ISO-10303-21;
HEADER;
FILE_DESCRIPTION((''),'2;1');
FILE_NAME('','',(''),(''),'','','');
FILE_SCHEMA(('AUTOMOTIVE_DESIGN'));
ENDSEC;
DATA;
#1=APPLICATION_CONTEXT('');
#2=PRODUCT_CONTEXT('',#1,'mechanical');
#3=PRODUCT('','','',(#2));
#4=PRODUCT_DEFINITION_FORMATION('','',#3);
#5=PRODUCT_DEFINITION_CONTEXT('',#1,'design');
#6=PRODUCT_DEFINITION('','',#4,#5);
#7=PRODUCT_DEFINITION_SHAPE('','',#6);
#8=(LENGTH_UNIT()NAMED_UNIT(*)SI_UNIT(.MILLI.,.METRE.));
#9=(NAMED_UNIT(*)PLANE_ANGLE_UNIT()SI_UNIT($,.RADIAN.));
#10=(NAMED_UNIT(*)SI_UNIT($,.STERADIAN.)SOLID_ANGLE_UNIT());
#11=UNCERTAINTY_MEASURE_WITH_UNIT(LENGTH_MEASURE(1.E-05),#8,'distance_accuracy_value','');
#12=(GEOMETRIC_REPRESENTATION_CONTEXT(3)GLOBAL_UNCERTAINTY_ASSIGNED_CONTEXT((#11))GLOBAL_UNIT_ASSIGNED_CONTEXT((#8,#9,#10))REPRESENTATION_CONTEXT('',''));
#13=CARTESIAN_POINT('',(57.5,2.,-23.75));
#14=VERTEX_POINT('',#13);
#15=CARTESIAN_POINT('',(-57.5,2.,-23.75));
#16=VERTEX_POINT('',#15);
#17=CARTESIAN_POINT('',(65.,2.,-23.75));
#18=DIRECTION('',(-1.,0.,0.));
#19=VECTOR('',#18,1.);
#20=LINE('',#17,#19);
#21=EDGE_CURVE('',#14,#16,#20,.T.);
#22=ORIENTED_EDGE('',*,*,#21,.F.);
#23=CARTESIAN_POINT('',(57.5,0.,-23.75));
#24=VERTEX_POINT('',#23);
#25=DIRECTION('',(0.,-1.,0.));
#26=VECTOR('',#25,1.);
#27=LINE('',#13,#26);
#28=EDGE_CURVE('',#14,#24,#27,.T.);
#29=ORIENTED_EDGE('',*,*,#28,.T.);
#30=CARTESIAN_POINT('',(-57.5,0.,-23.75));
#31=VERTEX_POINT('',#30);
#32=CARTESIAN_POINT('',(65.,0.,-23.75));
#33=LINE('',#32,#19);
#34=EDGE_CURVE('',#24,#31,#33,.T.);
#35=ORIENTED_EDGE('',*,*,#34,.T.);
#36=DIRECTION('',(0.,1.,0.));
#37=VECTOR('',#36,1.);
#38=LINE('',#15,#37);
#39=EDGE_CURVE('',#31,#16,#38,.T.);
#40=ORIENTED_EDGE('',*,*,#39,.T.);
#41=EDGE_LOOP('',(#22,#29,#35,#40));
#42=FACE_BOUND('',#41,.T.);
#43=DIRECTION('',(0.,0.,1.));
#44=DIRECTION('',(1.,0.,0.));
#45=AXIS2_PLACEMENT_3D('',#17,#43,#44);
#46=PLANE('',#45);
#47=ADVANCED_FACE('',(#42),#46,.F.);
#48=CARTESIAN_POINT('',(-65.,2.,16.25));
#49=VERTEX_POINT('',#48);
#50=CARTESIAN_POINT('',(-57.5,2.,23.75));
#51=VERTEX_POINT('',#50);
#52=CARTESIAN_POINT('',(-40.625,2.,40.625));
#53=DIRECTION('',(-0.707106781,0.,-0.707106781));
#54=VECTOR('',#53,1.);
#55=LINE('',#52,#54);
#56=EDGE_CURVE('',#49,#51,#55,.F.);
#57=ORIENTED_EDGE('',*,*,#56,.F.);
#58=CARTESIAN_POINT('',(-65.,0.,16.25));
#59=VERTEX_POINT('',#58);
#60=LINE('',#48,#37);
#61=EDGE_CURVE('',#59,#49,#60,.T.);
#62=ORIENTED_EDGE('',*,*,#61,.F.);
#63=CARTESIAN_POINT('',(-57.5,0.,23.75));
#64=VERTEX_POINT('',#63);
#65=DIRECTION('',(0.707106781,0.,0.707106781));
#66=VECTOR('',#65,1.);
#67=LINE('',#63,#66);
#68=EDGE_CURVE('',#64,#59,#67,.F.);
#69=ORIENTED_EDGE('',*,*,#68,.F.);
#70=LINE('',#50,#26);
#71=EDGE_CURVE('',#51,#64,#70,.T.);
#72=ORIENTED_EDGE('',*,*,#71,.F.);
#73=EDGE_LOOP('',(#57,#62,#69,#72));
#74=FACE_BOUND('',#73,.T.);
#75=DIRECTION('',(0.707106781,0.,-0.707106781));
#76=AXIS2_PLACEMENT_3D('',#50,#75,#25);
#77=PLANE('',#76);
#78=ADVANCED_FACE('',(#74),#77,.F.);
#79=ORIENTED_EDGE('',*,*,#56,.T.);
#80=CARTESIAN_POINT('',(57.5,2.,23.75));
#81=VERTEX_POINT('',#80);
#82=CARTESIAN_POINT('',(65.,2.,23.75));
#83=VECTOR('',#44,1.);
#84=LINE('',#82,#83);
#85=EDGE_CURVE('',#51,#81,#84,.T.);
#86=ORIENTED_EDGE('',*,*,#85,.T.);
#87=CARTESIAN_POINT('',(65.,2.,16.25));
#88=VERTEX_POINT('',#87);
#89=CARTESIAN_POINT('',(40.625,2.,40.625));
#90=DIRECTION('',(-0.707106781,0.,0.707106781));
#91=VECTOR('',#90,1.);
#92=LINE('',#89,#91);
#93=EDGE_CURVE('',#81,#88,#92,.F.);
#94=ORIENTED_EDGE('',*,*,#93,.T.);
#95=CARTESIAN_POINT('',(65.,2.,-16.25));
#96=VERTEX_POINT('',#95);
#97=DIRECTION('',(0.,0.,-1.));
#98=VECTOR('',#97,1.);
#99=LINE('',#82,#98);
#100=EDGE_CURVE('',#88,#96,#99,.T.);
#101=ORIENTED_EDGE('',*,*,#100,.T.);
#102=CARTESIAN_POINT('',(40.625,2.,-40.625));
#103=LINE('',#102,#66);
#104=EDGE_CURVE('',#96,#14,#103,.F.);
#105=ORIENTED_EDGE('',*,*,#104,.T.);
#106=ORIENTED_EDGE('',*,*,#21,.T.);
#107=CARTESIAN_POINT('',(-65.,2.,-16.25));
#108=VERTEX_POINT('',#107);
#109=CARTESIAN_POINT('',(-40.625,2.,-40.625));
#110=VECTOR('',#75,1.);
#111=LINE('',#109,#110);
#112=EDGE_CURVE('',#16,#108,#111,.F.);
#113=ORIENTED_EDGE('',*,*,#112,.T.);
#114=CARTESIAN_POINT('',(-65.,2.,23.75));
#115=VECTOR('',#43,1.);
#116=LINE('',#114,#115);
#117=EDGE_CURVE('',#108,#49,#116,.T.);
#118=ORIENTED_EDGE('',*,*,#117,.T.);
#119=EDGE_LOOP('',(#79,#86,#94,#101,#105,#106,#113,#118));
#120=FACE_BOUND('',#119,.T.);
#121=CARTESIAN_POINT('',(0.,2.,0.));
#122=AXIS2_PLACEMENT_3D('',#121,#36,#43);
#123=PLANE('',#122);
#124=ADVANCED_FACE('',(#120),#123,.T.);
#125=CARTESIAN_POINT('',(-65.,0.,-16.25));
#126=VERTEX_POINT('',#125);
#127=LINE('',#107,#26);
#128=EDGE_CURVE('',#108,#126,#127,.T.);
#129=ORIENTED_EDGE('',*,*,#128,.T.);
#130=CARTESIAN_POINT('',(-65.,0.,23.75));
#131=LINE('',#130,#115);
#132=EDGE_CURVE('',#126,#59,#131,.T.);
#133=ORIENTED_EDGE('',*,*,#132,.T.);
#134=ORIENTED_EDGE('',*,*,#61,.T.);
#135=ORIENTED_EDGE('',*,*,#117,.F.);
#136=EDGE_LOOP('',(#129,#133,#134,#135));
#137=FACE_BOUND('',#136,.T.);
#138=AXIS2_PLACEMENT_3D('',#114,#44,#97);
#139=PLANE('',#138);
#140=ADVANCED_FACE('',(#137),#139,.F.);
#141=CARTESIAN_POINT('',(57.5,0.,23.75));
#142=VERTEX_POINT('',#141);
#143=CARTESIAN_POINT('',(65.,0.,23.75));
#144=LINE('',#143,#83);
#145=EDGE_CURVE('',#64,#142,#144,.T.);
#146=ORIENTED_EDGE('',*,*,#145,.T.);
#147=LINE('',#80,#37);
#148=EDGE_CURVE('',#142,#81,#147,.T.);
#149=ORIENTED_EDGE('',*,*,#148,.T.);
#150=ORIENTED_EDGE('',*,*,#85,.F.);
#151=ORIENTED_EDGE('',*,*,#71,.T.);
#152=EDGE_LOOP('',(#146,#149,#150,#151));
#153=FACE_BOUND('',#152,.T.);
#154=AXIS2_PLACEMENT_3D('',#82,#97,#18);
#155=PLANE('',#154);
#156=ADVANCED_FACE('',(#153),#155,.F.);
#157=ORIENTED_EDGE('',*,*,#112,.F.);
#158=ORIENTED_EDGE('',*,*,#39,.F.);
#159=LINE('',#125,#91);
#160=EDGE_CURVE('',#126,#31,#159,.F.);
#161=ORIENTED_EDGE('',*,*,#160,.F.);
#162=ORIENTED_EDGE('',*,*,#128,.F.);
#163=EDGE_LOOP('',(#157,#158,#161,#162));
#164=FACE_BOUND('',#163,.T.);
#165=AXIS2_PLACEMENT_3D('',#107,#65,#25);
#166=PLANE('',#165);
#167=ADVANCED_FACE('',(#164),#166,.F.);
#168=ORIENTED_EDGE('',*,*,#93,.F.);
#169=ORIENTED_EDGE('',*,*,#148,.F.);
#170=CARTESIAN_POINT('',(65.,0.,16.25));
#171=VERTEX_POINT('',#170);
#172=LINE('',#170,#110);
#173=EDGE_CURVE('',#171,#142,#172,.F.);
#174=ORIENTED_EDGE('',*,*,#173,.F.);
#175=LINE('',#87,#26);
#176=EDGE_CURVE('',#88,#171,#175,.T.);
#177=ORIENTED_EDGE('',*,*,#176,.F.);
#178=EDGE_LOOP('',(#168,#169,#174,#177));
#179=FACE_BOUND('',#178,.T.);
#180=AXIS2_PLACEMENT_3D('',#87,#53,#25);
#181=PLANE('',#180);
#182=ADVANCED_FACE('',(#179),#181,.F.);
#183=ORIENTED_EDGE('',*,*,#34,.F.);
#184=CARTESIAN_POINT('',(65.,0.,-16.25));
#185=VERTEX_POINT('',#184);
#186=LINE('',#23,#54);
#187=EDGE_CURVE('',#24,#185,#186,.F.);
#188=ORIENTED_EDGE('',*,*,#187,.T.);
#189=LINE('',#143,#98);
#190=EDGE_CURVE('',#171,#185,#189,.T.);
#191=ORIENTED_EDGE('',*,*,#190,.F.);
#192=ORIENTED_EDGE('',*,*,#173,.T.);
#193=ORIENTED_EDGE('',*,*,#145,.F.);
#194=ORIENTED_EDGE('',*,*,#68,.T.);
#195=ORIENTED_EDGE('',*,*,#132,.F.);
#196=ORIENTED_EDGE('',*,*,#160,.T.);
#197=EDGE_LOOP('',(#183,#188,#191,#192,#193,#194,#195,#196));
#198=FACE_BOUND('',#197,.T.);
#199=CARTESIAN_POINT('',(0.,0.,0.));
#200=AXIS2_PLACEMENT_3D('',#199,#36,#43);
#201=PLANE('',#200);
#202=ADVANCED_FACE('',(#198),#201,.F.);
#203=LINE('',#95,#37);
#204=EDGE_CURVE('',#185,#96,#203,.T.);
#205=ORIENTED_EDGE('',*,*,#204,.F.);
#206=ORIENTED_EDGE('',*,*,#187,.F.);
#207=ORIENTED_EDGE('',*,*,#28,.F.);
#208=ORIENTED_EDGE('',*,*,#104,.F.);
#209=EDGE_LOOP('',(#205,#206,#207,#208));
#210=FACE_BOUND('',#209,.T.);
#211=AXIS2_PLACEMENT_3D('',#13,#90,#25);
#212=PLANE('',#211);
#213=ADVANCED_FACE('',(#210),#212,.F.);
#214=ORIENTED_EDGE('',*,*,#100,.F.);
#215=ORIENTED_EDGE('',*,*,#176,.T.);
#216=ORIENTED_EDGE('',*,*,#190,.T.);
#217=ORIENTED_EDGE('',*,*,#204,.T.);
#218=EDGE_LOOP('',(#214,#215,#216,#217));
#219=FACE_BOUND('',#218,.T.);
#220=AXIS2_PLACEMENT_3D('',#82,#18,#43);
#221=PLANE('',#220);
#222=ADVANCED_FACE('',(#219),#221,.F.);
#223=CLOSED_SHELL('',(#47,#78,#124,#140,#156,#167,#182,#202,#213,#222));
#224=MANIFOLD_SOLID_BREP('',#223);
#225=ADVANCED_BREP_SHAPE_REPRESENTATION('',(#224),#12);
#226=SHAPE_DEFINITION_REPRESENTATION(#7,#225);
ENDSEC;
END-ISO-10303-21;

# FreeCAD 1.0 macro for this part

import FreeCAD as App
import Part
import Sketcher

V = App.Vector
Q = App.Units.Quantity


def edges_at(feature, points):
    """Names of the edges that pass closest to the given points."""
    edges = feature.Shape.Edges
    near = lambda p: min(range(len(edges)), key=lambda i: edges[i].distToShape(Part.Vertex(*p))[0])
    return sorted({f"Edge{near(p) + 1}" for p in points})


def add_polygon(sketch, points):
    """Adds a closed chain of lines whose ends are joined by coincident constraints."""
    first, n = sketch.GeometryCount, len(points)
    for a, b in zip(points, points[1:] + points[:1]):
        sketch.addGeometry(Part.LineSegment(App.Vector(*a, 0), App.Vector(*b, 0)), False)
    for i in range(n):
        sketch.addConstraint(Sketcher.Constraint("Coincident", first + i, 2, first + (i + 1) % n, 1))

doc = App.newDocument("Part")
body = doc.addObject("PartDesign::Body", "Body")

# Sketch on XZ plane
sketch1 = body.newObject("Sketcher::SketchObject", "Sketch")
sketch1.AttachmentSupport = (doc.getObject("XZ_Plane"), [""])
sketch1.MapMode = "FlatFace"
add_polygon(sketch1, [(-65, -23.75), (-65, 23.75), (65, 23.75), (65, -23.75)])  # lines 0-3
sketch1.addConstraint([
    Sketcher.Constraint("Vertical", 0),
    Sketcher.Constraint("Horizontal", 1),
    Sketcher.Constraint("Vertical", 2),
    Sketcher.Constraint("Horizontal", 3),
    Sketcher.Constraint("Symmetric", 0, 2, 2, 2, -1, 1),
    Sketcher.Constraint("DistanceX", 1, 1, 1, 2, Q("130 mm")),
    Sketcher.Constraint("DistanceY", 0, 1, 0, 2, Q("47.5 mm")),
])
pad1 = body.newObject("PartDesign::Pad", "Pad")
pad1.Profile = sketch1
pad1.Length = 2
pad1.Reversed = True
doc.recompute()

chamfer = body.newObject("PartDesign::Chamfer", "Chamfer")
chamfer.Base = (pad1, edges_at(pad1, [
    (-65, 1, -23.75),
    (65, 1, -23.75),
    (65, 1, 23.75),
    (-65, 1, 23.75),
]))
chamfer.Size = 7.5

doc.recompute()
